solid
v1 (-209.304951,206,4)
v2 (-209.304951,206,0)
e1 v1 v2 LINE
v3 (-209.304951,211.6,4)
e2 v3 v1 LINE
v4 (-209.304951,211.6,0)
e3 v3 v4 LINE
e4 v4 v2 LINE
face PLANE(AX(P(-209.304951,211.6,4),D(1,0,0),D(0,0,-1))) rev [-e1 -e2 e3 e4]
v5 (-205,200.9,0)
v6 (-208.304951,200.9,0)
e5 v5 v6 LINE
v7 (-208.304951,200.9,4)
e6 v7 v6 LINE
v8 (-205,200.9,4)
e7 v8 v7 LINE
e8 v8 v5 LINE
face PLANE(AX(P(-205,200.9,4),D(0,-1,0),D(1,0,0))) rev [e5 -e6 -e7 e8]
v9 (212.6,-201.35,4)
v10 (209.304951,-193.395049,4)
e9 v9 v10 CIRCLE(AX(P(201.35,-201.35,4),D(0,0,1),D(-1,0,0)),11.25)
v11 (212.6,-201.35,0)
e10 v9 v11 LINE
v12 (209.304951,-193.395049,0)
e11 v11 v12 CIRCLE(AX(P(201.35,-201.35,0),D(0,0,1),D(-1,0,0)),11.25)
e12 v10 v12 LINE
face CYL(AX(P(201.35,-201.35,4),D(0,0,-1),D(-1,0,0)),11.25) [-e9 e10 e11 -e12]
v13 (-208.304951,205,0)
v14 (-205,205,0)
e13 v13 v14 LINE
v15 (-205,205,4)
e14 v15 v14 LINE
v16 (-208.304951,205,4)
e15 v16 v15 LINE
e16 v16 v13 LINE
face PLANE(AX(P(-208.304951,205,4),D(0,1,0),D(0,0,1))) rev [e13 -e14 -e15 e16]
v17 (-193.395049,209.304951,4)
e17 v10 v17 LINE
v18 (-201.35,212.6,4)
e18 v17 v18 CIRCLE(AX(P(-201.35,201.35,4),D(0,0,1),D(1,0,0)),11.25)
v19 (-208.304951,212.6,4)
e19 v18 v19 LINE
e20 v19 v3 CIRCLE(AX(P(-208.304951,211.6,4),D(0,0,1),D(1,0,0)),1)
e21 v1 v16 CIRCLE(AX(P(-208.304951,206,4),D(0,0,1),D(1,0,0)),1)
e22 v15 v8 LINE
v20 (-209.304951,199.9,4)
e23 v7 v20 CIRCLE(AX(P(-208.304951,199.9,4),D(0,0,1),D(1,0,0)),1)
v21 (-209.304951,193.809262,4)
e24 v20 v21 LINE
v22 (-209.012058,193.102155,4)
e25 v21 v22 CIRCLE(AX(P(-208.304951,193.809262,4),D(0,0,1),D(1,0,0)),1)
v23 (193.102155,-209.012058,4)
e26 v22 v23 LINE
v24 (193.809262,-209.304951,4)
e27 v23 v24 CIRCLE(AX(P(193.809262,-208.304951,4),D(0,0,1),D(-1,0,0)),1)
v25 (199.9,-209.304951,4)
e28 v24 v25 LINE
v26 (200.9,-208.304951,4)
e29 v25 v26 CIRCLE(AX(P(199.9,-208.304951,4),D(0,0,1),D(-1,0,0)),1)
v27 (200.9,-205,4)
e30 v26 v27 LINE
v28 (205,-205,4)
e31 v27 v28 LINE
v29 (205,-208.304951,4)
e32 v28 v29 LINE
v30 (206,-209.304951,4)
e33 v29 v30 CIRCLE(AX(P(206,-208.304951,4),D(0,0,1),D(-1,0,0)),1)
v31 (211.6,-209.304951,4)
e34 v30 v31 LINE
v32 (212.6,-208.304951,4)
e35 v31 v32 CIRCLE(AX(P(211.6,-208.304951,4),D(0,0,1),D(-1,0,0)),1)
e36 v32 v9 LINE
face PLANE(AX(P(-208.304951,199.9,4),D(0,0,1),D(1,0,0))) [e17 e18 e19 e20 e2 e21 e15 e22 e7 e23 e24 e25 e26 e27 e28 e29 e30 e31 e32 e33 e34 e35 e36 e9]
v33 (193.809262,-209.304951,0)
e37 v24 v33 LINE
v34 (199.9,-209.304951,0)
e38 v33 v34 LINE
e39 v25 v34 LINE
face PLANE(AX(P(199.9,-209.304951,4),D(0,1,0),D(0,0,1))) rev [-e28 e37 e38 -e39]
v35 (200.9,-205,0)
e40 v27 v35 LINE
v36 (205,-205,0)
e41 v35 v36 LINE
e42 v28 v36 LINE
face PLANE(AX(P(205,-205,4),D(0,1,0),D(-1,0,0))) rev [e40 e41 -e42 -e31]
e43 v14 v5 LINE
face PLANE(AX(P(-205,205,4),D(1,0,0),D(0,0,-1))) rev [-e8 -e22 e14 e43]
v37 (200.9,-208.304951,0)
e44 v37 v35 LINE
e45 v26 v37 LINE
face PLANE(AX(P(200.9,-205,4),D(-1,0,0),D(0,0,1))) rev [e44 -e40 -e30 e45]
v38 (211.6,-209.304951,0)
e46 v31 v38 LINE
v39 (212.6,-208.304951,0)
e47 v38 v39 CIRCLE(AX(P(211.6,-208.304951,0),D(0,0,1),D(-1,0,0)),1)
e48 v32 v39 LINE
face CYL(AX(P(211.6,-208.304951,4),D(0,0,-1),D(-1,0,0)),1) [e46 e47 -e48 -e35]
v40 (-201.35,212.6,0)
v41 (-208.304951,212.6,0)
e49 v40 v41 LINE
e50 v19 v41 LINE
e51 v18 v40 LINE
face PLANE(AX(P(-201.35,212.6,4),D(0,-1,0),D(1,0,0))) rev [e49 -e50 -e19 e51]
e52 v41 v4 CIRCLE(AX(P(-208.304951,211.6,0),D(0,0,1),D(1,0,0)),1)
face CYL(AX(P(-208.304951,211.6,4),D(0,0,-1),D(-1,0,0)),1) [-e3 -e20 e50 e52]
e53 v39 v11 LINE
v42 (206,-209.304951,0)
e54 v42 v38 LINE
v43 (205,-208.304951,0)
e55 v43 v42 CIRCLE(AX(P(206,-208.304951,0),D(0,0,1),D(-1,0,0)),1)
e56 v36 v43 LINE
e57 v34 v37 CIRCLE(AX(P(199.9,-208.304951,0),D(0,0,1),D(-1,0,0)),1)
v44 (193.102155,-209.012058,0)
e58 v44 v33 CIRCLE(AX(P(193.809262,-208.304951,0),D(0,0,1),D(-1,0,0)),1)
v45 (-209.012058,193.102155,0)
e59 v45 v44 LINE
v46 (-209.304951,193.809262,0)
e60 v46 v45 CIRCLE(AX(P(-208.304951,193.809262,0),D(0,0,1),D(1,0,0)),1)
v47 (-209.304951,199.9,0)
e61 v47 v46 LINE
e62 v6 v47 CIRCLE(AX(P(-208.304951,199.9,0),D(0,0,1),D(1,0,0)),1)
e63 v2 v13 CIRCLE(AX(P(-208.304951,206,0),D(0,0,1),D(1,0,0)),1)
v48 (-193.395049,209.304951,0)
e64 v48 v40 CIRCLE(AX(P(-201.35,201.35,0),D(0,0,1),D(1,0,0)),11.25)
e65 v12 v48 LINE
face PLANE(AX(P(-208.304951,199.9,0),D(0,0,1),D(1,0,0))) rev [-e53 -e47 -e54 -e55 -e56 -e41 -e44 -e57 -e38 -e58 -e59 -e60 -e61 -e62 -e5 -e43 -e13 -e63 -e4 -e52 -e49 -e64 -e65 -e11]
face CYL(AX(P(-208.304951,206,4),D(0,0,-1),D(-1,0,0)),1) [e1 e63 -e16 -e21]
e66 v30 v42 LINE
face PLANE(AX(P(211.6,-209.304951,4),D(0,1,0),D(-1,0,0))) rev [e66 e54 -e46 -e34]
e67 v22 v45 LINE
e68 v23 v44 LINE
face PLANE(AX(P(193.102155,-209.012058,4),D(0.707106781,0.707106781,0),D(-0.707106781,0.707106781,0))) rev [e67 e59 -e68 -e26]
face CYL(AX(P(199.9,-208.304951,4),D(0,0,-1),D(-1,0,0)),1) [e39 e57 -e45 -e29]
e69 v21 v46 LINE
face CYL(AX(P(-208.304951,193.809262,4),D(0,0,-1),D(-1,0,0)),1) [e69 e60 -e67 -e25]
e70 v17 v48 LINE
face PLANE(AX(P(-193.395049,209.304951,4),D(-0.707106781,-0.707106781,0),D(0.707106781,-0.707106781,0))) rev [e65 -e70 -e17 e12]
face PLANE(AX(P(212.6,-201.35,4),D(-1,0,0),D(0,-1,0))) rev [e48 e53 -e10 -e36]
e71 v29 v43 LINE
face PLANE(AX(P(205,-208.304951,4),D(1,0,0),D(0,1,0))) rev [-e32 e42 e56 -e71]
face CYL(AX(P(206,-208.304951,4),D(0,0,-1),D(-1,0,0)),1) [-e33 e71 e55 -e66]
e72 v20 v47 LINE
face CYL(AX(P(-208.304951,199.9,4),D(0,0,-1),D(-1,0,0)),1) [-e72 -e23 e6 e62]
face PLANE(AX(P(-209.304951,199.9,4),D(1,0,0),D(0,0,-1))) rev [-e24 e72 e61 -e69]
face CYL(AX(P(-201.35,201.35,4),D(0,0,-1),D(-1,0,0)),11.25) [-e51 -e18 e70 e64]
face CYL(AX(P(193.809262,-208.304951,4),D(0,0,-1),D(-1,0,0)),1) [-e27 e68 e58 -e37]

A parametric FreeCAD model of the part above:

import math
import FreeCAD as App
import Part
import Sketcher
Q = App.Units.Quantity

doc = App.newDocument("Part")
body = doc.addObject("PartDesign::Body", "Body")

# Sketch on XY plane
sketch1 = body.newObject("Sketcher::SketchObject", "Sketch")
sketch1.AttachmentSupport = (doc.getObject("XY_Plane"), [""])
sketch1.MapMode = "FlatFace"
sketch1.addGeometry([
    Part.LineSegment(App.Vector(-201.35, 212.6, 0), App.Vector(-208.304951, 212.6, 0)),  # 0
    Part.ArcOfCircle(Part.Circle(App.Vector(-208.304951, 211.6, 0), App.Vector(0, 0, 1), 1), math.radians(90), math.radians(180)),  # 1
    Part.LineSegment(App.Vector(-209.304951, 211.6, 0), App.Vector(-209.304951, 206, 0)),  # 2
    Part.ArcOfCircle(Part.Circle(App.Vector(-208.304951, 206, 0), App.Vector(0, 0, 1), 1), math.radians(180), math.radians(270)),  # 3
    Part.LineSegment(App.Vector(-208.304951, 205, 0), App.Vector(-205, 205, 0)),  # 4
    Part.LineSegment(App.Vector(-205, 205, 0), App.Vector(-205, 200.9, 0)),  # 5
    Part.LineSegment(App.Vector(-205, 200.9, 0), App.Vector(-208.304951, 200.9, 0)),  # 6
    Part.ArcOfCircle(Part.Circle(App.Vector(-208.304951, 199.9, 0), App.Vector(0, 0, 1), 1), math.radians(90), math.radians(180)),  # 7
    Part.LineSegment(App.Vector(-209.304951, 199.9, 0), App.Vector(-209.304951, 193.809262, 0)),  # 8
    Part.ArcOfCircle(Part.Circle(App.Vector(-208.304951, 193.809262, 0), App.Vector(0, 0, 1), 1), math.radians(180), math.radians(225)),  # 9
    Part.LineSegment(App.Vector(-209.012058, 193.102155, 0), App.Vector(193.102155, -209.012058, 0)),  # 10
    Part.ArcOfCircle(Part.Circle(App.Vector(193.809262, -208.304951, 0), App.Vector(0, 0, 1), 1), math.radians(-135), math.radians(-90)),  # 11
    Part.LineSegment(App.Vector(193.809262, -209.304951, 0), App.Vector(199.9, -209.304951, 0)),  # 12
    Part.ArcOfCircle(Part.Circle(App.Vector(199.9, -208.304951, 0), App.Vector(0, 0, 1), 1), math.radians(-90), math.radians(0)),  # 13
    Part.LineSegment(App.Vector(200.9, -208.304951, 0), App.Vector(200.9, -205, 0)),  # 14
    Part.LineSegment(App.Vector(200.9, -205, 0), App.Vector(205, -205, 0)),  # 15
    Part.LineSegment(App.Vector(205, -205, 0), App.Vector(205, -208.304951, 0)),  # 16
    Part.ArcOfCircle(Part.Circle(App.Vector(206, -208.304951, 0), App.Vector(0, 0, 1), 1), math.radians(180), math.radians(270)),  # 17
    Part.LineSegment(App.Vector(206, -209.304951, 0), App.Vector(211.6, -209.304951, 0)),  # 18
    Part.ArcOfCircle(Part.Circle(App.Vector(211.6, -208.304951, 0), App.Vector(0, 0, 1), 1), math.radians(-90), math.radians(0)),  # 19
    Part.LineSegment(App.Vector(212.6, -208.304951, 0), App.Vector(212.6, -201.35, 0)),  # 20
    Part.ArcOfCircle(Part.Circle(App.Vector(201.35, -201.35, 0), App.Vector(0, 0, 1), 11.25), math.radians(0), math.radians(45)),  # 21
    Part.LineSegment(App.Vector(209.304951, -193.395049, 0), App.Vector(205, -189.090097, 0)),  # 22
    Part.LineSegment(App.Vector(205, -189.090097, 0), App.Vector(-189.090097, 205, 0)),  # 23
    Part.LineSegment(App.Vector(-189.090097, 205, 0), App.Vector(-193.395049, 209.304951, 0)),  # 24
    Part.ArcOfCircle(Part.Circle(App.Vector(-201.35, 201.35, 0), App.Vector(0, 0, 1), 11.25), math.radians(45), math.radians(90)),  # 25
], False)
sketch1.addConstraint([
    Sketcher.Constraint("Tangent", 0, 2, 1, 1),
    Sketcher.Constraint("Tangent", 1, 2, 2, 1),
    Sketcher.Constraint("Tangent", 2, 2, 3, 1),
    Sketcher.Constraint("Tangent", 3, 2, 4, 1),
    Sketcher.Constraint("Coincident", 4, 2, 5, 1),
    Sketcher.Constraint("Coincident", 5, 2, 6, 1),
    Sketcher.Constraint("Tangent", 6, 2, 7, 1),
    Sketcher.Constraint("Tangent", 7, 2, 8, 1),
    Sketcher.Constraint("Tangent", 8, 2, 9, 1),
    Sketcher.Constraint("Tangent", 9, 2, 10, 1),
    Sketcher.Constraint("Tangent", 10, 2, 11, 1),
    Sketcher.Constraint("Tangent", 11, 2, 12, 1),
    Sketcher.Constraint("Tangent", 12, 2, 13, 1),
    Sketcher.Constraint("Tangent", 13, 2, 14, 1),
    Sketcher.Constraint("Coincident", 14, 2, 15, 1),
    Sketcher.Constraint("Coincident", 15, 2, 16, 1),
    Sketcher.Constraint("Tangent", 16, 2, 17, 1),
    Sketcher.Constraint("Tangent", 17, 2, 18, 1),
    Sketcher.Constraint("Tangent", 18, 2, 19, 1),
    Sketcher.Constraint("Tangent", 19, 2, 20, 1),
    Sketcher.Constraint("Tangent", 20, 2, 21, 1),
    Sketcher.Constraint("Tangent", 21, 2, 22, 1),
    Sketcher.Constraint("Coincident", 22, 2, 23, 1),
    Sketcher.Constraint("Coincident", 23, 2, 24, 1),
    Sketcher.Constraint("Tangent", 24, 2, 25, 1),
    Sketcher.Constraint("Tangent", 25, 2, 0, 1),
    Sketcher.Constraint("Horizontal", 0),
    Sketcher.Constraint("Vertical", 2),
    Sketcher.Constraint("Horizontal", 4),
    Sketcher.Constraint("Vertical", 5),
    Sketcher.Constraint("Horizontal", 6),
    Sketcher.Constraint("Vertical", 8),
    Sketcher.Constraint("Horizontal", 12),
    Sketcher.Constraint("Vertical", 14),
    Sketcher.Constraint("Horizontal", 15),
    Sketcher.Constraint("Vertical", 16),
    Sketcher.Constraint("Horizontal", 18),
    Sketcher.Constraint("Vertical", 20),
    Sketcher.Constraint("Equal", 1, 3),
    Sketcher.Constraint("Equal", 3, 7),
    Sketcher.Constraint("Equal", 7, 9),
    Sketcher.Constraint("Equal", 9, 11),
    Sketcher.Constraint("Equal", 11, 13),
    Sketcher.Constraint("Equal", 13, 17),
    Sketcher.Constraint("Equal", 17, 19),
    Sketcher.Constraint("Equal", 21, 25),
    Sketcher.Constraint("Symmetric", 21, 3, 25, 3, -1, 1),
    Sketcher.Constraint("Symmetric", 4, 2, 15, 2, -1, 1),
    Sketcher.Constraint("Parallel", 10, 22),
    Sketcher.Constraint("Parallel", 22, 23),
    Sketcher.Constraint("Parallel", 23, 24),
    Sketcher.Constraint("Horizontal", 13, 3, 17, 3),
    Sketcher.Constraint("Horizontal", 4, 2, 23, 2),
    Sketcher.Constraint("Vertical", 3, 3, 7, 3),
    Sketcher.Constraint("Vertical", 16, 2, 22, 2),
    Sketcher.Constraint("Equal", 18, 2),
    Sketcher.Constraint("Equal", 15, 5),
    Sketcher.Constraint("Equal", 12, 8),
    Sketcher.Constraint("Equal", 22, 24),
    Sketcher.Constraint("Radius", 1, Q("1 mm")),
    Sketcher.Constraint("Radius", 21, Q("11.25 mm")),
    Sketcher.Constraint("DistanceX", 15, 1, 15, 2, Q("4.1 mm")),
    Sketcher.Constraint("DistanceX", 18, 1, 18, 2, Q("5.6 mm")),
    Sketcher.Constraint("DistanceY", -1, 1, 3, 3, Q("206 mm")),
    Sketcher.Constraint("DistanceX", 0, 2, 0, 1, Q("6.954951 mm")),
    Sketcher.Constraint("DistanceX", 12, 1, 12, 2, Q("6.090738 mm")),
])
pad1 = body.newObject("PartDesign::Pad", "Pad")
pad1.Profile = sketch1
pad1.Length = 4

doc.recompute()
